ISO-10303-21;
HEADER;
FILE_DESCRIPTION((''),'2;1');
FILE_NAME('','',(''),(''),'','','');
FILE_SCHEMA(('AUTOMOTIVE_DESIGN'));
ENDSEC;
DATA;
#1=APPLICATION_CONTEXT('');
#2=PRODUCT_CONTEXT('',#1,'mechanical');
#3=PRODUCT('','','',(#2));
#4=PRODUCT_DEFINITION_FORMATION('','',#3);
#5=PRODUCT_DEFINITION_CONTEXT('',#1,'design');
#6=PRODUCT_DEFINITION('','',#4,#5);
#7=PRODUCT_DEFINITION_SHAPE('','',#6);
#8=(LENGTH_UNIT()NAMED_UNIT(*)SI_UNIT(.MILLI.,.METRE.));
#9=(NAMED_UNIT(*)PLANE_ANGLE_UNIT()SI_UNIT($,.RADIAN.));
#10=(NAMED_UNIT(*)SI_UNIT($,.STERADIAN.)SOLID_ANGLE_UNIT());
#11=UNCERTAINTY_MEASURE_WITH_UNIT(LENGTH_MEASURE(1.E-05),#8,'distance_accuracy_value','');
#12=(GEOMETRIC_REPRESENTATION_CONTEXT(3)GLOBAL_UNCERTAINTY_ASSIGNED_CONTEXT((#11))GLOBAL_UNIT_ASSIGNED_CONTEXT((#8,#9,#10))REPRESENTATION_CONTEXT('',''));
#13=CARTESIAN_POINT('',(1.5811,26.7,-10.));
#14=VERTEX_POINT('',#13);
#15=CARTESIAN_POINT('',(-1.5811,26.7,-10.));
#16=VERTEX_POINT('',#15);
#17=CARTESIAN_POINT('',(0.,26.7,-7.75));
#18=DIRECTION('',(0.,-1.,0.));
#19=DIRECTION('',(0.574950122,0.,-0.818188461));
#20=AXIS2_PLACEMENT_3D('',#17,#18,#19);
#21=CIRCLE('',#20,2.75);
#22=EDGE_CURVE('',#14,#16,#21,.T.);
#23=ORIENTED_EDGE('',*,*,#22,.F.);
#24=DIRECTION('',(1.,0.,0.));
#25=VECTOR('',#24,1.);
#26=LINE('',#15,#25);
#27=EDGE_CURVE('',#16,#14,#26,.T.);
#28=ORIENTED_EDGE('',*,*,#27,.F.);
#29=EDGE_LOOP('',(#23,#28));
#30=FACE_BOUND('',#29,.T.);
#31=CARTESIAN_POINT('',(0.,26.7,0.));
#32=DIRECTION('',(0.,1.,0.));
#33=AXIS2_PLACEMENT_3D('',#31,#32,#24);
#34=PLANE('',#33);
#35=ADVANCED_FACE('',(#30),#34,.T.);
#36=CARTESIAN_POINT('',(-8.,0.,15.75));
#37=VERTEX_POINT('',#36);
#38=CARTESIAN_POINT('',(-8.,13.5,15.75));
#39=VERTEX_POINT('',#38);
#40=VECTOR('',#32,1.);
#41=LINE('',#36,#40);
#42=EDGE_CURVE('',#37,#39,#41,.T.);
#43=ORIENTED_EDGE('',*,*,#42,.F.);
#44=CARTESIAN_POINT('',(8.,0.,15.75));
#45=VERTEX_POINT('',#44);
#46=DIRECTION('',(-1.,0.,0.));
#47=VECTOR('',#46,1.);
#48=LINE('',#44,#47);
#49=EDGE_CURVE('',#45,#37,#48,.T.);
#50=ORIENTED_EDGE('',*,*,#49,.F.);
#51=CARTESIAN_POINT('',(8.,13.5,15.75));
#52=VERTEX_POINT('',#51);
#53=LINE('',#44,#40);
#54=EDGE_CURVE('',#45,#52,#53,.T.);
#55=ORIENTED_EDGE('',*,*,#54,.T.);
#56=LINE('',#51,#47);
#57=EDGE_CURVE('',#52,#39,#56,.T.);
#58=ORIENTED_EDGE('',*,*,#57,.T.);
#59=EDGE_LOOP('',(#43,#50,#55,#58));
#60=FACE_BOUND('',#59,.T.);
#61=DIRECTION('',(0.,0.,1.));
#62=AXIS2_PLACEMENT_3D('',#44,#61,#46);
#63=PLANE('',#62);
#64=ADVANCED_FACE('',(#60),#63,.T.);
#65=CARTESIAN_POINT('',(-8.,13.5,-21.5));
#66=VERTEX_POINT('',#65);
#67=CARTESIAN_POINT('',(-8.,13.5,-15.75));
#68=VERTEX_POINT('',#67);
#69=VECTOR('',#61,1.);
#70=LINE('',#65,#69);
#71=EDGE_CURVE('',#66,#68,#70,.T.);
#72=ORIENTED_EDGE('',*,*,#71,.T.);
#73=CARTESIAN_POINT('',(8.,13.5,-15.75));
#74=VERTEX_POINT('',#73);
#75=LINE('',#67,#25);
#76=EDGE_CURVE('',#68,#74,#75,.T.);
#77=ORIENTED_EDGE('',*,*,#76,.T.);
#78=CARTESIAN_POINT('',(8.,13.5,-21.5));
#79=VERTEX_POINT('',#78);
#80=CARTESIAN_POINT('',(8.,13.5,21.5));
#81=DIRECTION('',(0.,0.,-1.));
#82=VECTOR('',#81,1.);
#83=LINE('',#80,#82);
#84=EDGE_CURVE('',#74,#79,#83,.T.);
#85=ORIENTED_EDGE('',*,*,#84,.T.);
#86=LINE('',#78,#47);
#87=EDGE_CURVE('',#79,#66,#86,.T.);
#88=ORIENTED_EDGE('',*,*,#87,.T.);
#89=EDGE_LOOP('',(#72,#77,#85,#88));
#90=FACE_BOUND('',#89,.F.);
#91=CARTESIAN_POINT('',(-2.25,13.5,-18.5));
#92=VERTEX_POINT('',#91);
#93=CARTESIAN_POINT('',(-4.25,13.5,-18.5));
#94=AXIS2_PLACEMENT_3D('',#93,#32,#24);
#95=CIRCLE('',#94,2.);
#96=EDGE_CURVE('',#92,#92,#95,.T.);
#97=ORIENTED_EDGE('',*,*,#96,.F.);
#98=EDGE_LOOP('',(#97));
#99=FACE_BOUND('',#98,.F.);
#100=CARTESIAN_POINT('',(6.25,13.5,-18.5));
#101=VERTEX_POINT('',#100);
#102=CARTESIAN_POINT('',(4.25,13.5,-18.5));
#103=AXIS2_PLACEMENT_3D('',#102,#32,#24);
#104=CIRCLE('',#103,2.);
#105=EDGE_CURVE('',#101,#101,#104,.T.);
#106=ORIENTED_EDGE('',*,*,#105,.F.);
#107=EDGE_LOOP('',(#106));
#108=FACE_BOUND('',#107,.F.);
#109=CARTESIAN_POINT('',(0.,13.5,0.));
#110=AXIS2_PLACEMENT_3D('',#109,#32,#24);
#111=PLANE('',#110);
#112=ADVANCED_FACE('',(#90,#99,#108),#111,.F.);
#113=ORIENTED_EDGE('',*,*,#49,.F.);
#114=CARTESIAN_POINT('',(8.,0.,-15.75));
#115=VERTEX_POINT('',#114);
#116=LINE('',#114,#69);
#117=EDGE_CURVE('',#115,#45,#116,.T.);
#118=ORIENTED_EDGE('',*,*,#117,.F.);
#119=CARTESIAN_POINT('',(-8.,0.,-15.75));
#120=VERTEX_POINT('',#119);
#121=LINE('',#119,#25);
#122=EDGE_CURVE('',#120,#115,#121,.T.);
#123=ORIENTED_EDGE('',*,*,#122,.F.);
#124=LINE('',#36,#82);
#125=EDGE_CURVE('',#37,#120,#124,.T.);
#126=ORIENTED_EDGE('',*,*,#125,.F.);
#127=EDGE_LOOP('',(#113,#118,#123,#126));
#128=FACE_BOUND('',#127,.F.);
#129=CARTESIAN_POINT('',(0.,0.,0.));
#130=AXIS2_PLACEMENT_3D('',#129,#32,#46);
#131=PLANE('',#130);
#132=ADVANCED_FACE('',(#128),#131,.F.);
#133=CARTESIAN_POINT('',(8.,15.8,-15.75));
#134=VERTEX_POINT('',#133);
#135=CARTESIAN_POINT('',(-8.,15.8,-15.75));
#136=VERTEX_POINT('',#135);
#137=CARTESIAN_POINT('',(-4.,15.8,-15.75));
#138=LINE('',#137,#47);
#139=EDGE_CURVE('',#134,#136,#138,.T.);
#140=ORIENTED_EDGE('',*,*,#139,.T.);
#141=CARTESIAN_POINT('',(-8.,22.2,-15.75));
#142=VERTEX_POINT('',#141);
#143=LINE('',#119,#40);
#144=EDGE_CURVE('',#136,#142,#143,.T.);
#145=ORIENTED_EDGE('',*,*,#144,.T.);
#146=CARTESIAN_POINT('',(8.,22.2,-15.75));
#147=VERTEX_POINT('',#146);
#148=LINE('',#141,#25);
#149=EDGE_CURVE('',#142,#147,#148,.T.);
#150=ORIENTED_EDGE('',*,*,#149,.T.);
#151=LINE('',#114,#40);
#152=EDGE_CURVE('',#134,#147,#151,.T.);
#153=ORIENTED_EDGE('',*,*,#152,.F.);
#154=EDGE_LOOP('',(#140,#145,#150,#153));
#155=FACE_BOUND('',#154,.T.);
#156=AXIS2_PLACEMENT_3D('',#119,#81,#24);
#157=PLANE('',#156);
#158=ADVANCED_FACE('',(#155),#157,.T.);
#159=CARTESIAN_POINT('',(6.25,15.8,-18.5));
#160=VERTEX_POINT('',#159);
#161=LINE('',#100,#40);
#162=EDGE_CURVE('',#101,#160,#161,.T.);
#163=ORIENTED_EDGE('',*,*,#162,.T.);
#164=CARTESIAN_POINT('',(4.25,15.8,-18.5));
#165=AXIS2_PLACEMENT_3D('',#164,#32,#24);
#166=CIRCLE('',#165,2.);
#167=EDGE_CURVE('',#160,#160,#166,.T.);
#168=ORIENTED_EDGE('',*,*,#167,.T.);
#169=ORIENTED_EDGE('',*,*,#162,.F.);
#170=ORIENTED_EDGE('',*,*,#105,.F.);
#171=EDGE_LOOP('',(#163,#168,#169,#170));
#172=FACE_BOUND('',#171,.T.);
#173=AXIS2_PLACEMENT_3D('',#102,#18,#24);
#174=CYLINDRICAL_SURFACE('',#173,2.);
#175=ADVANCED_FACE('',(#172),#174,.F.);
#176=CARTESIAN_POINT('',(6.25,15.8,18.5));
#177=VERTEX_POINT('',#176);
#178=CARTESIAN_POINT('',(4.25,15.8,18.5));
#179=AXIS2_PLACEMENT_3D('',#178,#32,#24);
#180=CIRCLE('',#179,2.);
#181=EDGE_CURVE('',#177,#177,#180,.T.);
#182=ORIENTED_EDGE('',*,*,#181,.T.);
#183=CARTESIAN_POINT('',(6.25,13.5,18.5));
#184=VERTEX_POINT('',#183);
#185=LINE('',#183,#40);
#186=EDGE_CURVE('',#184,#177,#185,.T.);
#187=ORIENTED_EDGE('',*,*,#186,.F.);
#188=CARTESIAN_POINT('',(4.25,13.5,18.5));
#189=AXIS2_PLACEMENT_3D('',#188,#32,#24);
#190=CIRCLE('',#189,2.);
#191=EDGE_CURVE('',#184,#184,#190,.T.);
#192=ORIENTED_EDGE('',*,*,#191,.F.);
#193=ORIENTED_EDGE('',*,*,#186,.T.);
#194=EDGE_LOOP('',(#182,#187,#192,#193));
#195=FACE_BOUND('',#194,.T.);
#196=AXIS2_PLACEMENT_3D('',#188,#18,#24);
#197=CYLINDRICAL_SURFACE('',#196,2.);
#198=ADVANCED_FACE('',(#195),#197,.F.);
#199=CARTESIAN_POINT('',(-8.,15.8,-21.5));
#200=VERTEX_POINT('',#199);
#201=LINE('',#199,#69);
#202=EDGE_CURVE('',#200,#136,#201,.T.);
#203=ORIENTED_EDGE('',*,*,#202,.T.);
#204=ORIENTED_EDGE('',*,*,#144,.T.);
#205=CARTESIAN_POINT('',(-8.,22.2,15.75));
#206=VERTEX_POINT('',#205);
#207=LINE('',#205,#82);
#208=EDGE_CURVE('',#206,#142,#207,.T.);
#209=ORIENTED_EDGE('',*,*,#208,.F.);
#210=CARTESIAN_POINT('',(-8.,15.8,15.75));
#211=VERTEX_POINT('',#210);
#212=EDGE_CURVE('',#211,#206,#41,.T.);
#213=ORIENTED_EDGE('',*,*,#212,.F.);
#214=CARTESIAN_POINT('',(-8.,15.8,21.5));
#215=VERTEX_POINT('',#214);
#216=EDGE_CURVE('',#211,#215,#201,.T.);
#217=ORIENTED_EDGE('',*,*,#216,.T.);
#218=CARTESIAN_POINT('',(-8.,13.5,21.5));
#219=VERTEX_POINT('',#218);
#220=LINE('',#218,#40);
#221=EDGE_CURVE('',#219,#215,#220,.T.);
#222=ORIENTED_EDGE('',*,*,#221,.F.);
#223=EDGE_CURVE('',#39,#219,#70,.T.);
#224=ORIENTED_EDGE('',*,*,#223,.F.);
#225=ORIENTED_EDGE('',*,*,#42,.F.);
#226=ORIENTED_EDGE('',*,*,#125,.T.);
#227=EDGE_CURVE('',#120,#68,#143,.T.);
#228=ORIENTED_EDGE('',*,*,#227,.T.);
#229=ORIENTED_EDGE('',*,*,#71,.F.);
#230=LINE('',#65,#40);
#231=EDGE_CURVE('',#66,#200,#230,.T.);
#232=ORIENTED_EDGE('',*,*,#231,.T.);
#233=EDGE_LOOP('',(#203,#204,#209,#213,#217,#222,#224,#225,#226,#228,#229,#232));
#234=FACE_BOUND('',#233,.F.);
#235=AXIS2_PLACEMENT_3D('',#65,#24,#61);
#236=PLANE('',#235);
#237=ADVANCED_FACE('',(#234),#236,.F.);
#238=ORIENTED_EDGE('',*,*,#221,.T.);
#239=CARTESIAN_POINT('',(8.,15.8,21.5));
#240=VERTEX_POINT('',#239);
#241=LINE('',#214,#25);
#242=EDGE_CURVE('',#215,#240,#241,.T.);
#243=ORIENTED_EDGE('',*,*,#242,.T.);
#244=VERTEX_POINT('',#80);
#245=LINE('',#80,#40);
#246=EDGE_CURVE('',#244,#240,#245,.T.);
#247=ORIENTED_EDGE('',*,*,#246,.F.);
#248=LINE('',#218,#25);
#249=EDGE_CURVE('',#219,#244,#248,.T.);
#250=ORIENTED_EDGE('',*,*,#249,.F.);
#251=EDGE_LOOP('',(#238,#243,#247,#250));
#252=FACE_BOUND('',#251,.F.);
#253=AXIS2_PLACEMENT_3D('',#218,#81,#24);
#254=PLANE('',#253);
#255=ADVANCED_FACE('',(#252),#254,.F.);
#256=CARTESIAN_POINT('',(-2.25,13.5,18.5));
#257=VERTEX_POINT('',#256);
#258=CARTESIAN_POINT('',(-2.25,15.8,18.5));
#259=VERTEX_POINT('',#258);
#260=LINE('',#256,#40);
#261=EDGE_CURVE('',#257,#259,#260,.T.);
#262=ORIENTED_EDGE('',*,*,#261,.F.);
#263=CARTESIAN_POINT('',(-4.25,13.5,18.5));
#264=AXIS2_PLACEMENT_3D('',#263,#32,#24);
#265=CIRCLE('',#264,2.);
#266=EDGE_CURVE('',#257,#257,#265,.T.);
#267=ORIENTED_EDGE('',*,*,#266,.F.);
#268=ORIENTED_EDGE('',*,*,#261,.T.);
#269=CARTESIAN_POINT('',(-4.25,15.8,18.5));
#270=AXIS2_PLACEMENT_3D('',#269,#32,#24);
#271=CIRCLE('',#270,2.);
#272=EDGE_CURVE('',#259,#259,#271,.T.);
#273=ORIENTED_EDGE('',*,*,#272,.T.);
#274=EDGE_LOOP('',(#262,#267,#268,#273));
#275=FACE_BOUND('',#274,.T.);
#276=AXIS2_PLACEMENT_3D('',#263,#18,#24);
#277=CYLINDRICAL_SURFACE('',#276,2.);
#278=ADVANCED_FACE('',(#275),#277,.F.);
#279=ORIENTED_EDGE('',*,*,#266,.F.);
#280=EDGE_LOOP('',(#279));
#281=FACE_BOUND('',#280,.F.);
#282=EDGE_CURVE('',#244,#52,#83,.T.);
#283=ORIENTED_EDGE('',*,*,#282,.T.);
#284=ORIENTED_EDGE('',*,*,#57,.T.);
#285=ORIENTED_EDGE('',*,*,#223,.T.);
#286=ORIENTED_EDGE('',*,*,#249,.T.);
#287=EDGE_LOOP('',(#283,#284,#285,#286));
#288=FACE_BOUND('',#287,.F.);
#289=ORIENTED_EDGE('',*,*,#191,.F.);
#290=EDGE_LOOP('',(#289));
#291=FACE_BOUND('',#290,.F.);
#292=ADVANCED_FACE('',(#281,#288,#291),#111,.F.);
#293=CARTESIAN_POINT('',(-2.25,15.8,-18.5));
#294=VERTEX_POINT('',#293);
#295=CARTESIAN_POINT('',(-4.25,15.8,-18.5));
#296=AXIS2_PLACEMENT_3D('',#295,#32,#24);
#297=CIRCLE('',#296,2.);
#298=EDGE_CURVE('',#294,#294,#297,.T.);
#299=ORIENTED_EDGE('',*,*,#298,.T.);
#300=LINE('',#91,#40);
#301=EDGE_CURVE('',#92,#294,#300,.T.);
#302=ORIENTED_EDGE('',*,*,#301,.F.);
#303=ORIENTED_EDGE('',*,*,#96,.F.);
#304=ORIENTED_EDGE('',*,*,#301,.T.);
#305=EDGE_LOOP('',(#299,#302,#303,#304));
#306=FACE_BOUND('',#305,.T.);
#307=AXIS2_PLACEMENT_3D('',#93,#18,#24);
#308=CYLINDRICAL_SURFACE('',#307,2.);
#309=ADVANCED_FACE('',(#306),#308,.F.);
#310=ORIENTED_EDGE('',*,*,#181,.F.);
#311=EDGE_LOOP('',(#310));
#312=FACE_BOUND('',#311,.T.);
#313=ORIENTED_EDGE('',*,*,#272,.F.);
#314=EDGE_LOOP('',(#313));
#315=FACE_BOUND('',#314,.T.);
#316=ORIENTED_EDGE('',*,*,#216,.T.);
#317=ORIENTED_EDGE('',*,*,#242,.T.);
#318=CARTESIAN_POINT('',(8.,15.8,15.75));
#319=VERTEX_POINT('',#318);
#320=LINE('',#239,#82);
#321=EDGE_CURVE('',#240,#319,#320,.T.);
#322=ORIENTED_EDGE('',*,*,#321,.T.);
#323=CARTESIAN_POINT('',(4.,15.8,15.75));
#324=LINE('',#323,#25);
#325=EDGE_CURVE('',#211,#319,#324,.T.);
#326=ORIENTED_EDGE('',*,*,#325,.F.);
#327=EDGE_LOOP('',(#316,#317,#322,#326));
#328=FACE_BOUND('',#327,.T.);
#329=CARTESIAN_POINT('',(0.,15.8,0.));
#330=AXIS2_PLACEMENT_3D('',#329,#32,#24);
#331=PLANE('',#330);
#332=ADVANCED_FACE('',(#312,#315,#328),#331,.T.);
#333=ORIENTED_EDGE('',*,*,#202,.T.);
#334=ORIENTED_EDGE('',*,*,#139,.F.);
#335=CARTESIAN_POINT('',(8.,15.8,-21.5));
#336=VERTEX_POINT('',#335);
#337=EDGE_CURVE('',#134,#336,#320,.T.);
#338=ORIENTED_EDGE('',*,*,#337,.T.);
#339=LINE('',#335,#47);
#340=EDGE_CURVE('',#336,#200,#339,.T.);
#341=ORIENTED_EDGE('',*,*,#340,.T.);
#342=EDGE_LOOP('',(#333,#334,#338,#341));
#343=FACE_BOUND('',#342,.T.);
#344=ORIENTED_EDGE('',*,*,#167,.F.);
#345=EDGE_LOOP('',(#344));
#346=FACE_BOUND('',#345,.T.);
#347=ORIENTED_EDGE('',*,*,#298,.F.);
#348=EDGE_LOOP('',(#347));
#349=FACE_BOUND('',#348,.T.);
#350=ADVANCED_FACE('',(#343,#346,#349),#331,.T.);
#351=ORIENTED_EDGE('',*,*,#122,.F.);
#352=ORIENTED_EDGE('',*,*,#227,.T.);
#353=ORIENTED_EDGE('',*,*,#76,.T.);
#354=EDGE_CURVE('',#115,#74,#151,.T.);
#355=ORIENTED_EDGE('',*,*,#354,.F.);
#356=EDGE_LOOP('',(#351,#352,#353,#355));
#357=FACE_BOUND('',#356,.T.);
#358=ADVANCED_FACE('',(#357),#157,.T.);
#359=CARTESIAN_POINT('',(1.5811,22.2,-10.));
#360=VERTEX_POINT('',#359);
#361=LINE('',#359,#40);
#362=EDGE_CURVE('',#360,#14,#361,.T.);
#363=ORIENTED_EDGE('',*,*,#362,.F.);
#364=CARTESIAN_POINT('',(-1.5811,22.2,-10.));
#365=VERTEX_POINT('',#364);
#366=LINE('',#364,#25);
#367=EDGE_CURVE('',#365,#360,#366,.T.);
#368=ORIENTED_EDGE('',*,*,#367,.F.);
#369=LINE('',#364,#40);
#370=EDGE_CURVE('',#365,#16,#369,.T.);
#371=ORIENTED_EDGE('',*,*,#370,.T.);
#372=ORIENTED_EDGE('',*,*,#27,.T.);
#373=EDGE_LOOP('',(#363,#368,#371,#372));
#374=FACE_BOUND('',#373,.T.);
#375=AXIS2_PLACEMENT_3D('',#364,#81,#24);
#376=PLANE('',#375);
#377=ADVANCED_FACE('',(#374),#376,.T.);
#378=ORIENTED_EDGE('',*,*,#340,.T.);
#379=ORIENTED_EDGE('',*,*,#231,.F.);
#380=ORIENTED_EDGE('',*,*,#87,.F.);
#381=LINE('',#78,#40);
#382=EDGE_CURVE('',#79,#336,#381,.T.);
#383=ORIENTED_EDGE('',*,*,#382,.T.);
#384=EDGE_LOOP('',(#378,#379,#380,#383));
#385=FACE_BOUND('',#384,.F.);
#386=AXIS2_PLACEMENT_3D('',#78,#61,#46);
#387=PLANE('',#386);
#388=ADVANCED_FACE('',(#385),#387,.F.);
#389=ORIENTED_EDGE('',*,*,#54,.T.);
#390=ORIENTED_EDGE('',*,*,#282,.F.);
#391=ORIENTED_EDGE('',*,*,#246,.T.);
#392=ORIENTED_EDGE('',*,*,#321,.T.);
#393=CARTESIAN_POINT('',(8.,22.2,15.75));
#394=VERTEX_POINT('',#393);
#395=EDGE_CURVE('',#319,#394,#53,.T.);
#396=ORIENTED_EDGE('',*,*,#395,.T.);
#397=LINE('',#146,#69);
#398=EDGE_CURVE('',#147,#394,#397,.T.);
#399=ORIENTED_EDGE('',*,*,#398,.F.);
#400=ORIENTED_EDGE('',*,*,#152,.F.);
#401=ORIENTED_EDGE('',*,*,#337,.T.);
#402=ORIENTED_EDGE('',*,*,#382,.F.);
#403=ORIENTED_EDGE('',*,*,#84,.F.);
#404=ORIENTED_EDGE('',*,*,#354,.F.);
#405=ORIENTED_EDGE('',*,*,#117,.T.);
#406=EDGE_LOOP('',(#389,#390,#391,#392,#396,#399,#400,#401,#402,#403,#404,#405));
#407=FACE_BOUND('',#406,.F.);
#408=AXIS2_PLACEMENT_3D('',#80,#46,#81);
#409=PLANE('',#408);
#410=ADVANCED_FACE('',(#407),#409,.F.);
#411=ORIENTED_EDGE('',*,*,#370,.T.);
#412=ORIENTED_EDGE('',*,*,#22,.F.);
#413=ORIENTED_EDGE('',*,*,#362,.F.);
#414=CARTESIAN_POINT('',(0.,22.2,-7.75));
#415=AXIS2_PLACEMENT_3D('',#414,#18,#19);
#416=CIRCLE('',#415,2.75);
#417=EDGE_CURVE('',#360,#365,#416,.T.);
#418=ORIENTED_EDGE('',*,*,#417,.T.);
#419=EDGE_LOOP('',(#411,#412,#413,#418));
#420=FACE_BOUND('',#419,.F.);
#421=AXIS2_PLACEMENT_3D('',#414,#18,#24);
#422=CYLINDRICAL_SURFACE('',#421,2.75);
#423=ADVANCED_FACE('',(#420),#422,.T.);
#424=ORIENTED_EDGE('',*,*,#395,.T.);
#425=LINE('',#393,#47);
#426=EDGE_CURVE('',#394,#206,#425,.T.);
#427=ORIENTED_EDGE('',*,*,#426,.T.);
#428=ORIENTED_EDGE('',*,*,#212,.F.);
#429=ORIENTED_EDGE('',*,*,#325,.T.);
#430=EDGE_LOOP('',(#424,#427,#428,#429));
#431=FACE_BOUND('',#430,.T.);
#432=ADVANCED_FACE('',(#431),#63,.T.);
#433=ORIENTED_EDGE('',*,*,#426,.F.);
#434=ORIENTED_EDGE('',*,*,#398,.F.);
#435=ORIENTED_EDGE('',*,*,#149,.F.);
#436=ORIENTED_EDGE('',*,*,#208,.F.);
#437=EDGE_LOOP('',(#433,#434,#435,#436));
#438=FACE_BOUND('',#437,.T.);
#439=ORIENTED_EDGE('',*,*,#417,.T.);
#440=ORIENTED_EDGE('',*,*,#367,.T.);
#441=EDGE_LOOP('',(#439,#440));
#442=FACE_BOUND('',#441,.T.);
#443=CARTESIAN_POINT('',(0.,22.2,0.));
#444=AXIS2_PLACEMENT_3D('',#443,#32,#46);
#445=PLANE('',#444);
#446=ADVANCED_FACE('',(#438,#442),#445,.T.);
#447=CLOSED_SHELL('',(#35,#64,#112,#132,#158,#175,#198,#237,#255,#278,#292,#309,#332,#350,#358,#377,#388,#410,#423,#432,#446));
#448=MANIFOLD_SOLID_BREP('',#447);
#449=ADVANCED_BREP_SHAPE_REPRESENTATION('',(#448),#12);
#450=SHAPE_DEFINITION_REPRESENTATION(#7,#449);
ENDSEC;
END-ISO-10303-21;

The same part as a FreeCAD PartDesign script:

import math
import FreeCAD as App
import Part
import Sketcher
from FreeCAD import Vector
Q = App.Units.Quantity

doc = App.newDocument("Part")
body = doc.addObject("PartDesign::Body", "Body")

# Sketch on XZ plane
sketch1 = body.newObject("Sketcher::SketchObject", "Sketch")
sketch1.AttachmentSupport = (doc.getObject("XZ_Plane"), [""])
sketch1.MapMode = "FlatFace"
sketch1.addGeometry([
    Part.LineSegment(Vector(-8, 15.75, 0), Vector(8, 15.75, 0)),
    Part.LineSegment(Vector(8, 15.75, 0), Vector(8, -15.75, 0)),
    Part.LineSegment(Vector(8, -15.75, 0), Vector(-8, -15.75, 0)),
    Part.LineSegment(Vector(-8, -15.75, 0), Vector(-8, 15.75, 0)),
], False)
sketch1.addConstraint([
    Sketcher.Constraint("Coincident", 0, 2, 1, 1),
    Sketcher.Constraint("Coincident", 1, 2, 2, 1),
    Sketcher.Constraint("Coincident", 2, 2, 3, 1),
    Sketcher.Constraint("Coincident", 3, 2, 0, 1),
    Sketcher.Constraint("Horizontal", 0),
    Sketcher.Constraint("Vertical", 1),
    Sketcher.Constraint("Horizontal", 2),
    Sketcher.Constraint("Vertical", 3),
    Sketcher.Constraint("Symmetric", 0, 2, 2, 2, -1, 1),
    Sketcher.Constraint("DistanceX", 0, 1, 0, 2, Q("16 mm")),
    Sketcher.Constraint("DistanceY", 1, 2, 1, 1, Q("31.5 mm")),
])
pad1 = body.newObject("PartDesign::Pad", "Pad")
pad1.Profile = sketch1
pad1.Length = 13.5
pad1.Reversed = True

# Sketch on XZ plane
sketch2 = body.newObject("Sketcher::SketchObject", "Sketch001")
sketch2.AttachmentSupport = (doc.getObject("XZ_Plane"), [""])
sketch2.MapMode = "FlatFace"
sketch2.AttachmentOffset = App.Placement(Vector(0, 0, -13.5), App.Rotation())
sketch2.addGeometry([
    Part.LineSegment(Vector(-8, -21.5, 0), Vector(-8, 21.5, 0)),  # 0
    Part.LineSegment(Vector(-8, 21.5, 0), Vector(8, 21.5, 0)),  # 1
    Part.LineSegment(Vector(8, 21.5, 0), Vector(8, -21.5, 0)),  # 2
    Part.LineSegment(Vector(8, -21.5, 0), Vector(-8, -21.5, 0)),  # 3
    Part.Circle(Vector(-4.25, 18.5, 0), Vector(0, 0, 1), 2),  # 4
    Part.Circle(Vector(4.25, 18.5, 0), Vector(0, 0, 1), 2),  # 5
    Part.Circle(Vector(-4.25, -18.5, 0), Vector(0, 0, 1), 2),  # 6
    Part.Circle(Vector(4.25, -18.5, 0), Vector(0, 0, 1), 2),  # 7
], False)
sketch2.addConstraint([
    Sketcher.Constraint("Coincident", 0, 2, 1, 1),
    Sketcher.Constraint("Coincident", 1, 2, 2, 1),
    Sketcher.Constraint("Coincident", 2, 2, 3, 1),
    Sketcher.Constraint("Coincident", 3, 2, 0, 1),
    Sketcher.Constraint("Vertical", 0),
    Sketcher.Constraint("Horizontal", 1),
    Sketcher.Constraint("Vertical", 2),
    Sketcher.Constraint("Horizontal", 3),
    Sketcher.Constraint("Equal", 4, 5),
    Sketcher.Constraint("Equal", 5, 6),
    Sketcher.Constraint("Equal", 6, 7),
    Sketcher.Constraint("Symmetric", 5, 3, 6, 3, -1, 1),
    Sketcher.Constraint("Symmetric", 4, 3, 7, 3, -1, 1),
    Sketcher.Constraint("Symmetric", 0, 2, 2, 2, -1, 1),
    Sketcher.Constraint("Symmetric", 4, 3, 5, 3, -2),
    Sketcher.Constraint("Diameter", 4, Q("4 mm")),
    Sketcher.Constraint("DistanceY", 0, 1, 0, 2, Q("43 mm")),
    Sketcher.Constraint("DistanceY", 6, 3, 4, 3, Q("37 mm")),
    Sketcher.Constraint("DistanceX", 4, 3, 5, 3, Q("8.5 mm")),
    Sketcher.Constraint("DistanceX", 1, 1, 1, 2, Q("16 mm")),
])
pad2 = body.newObject("PartDesign::Pad", "Pad001")
pad2.Profile = sketch2
pad2.Length = 2.3
pad2.Reversed = True

# Sketch on XZ plane
sketch3 = body.newObject("Sketcher::SketchObject", "Sketch002")
sketch3.AttachmentSupport = (doc.getObject("XZ_Plane"), [""])
sketch3.MapMode = "FlatFace"
sketch3.addGeometry([
    Part.LineSegment(Vector(-8, 15.75, 0), Vector(8, 15.75, 0)),
    Part.LineSegment(Vector(8, 15.75, 0), Vector(8, -15.75, 0)),
    Part.LineSegment(Vector(8, -15.75, 0), Vector(-8, -15.75, 0)),
    Part.LineSegment(Vector(-8, -15.75, 0), Vector(-8, 15.75, 0)),
], False)
sketch3.addConstraint([
    Sketcher.Constraint("Coincident", 0, 2, 1, 1),
    Sketcher.Constraint("Coincident", 1, 2, 2, 1),
    Sketcher.Constraint("Coincident", 2, 2, 3, 1),
    Sketcher.Constraint("Coincident", 3, 2, 0, 1),
    Sketcher.Constraint("Horizontal", 0),
    Sketcher.Constraint("Vertical", 1),
    Sketcher.Constraint("Horizontal", 2),
    Sketcher.Constraint("Vertical", 3),
    Sketcher.Constraint("Symmetric", 0, 2, 2, 2, -1, 1),
    Sketcher.Constraint("DistanceX", 0, 1, 0, 2, Q("16 mm")),
    Sketcher.Constraint("DistanceY", 1, 2, 1, 1, Q("31.5 mm")),
])
pad3 = body.newObject("PartDesign::Pad", "Pad002")
pad3.Profile = sketch3
pad3.Length = 22.2
pad3.Reversed = True

# Sketch on XZ plane
sketch4 = body.newObject("Sketcher::SketchObject", "Sketch003")
sketch4.AttachmentSupport = (doc.getObject("XZ_Plane"), [""])
sketch4.MapMode = "FlatFace"
sketch4.AttachmentOffset = App.Placement(Vector(0, 0, -22.2), App.Rotation())
sketch4.addGeometry([
    Part.ArcOfCircle(Part.Circle(Vector(0, -7.75, 0), Vector(0, 0, 1), 2.75), math.radians(-54.903861), math.radians(234.903861)),
    Part.LineSegment(Vector(-1.5811, -10, 0), Vector(1.5811, -10, 0)),
], False)
sketch4.addConstraint([
    Sketcher.Constraint("Coincident", 0, 1, 1, 2),
    Sketcher.Constraint("Coincident", 1, 1, 0, 2),
    Sketcher.Constraint("Horizontal", 1),
    Sketcher.Constraint("PointOnObject", 0, 3, -2),
    Sketcher.Constraint("Radius", 0, Q("2.75 mm")),
    Sketcher.Constraint("DistanceY", 0, 1, -1, 1, Q("10 mm")),
    Sketcher.Constraint("DistanceY", 0, 3, -1, 1, Q("7.75 mm")),
])
pad4 = body.newObject("PartDesign::Pad", "Pad003")
pad4.Profile = sketch4
pad4.Length = 4.5
pad4.Reversed = True

doc.recompute()
